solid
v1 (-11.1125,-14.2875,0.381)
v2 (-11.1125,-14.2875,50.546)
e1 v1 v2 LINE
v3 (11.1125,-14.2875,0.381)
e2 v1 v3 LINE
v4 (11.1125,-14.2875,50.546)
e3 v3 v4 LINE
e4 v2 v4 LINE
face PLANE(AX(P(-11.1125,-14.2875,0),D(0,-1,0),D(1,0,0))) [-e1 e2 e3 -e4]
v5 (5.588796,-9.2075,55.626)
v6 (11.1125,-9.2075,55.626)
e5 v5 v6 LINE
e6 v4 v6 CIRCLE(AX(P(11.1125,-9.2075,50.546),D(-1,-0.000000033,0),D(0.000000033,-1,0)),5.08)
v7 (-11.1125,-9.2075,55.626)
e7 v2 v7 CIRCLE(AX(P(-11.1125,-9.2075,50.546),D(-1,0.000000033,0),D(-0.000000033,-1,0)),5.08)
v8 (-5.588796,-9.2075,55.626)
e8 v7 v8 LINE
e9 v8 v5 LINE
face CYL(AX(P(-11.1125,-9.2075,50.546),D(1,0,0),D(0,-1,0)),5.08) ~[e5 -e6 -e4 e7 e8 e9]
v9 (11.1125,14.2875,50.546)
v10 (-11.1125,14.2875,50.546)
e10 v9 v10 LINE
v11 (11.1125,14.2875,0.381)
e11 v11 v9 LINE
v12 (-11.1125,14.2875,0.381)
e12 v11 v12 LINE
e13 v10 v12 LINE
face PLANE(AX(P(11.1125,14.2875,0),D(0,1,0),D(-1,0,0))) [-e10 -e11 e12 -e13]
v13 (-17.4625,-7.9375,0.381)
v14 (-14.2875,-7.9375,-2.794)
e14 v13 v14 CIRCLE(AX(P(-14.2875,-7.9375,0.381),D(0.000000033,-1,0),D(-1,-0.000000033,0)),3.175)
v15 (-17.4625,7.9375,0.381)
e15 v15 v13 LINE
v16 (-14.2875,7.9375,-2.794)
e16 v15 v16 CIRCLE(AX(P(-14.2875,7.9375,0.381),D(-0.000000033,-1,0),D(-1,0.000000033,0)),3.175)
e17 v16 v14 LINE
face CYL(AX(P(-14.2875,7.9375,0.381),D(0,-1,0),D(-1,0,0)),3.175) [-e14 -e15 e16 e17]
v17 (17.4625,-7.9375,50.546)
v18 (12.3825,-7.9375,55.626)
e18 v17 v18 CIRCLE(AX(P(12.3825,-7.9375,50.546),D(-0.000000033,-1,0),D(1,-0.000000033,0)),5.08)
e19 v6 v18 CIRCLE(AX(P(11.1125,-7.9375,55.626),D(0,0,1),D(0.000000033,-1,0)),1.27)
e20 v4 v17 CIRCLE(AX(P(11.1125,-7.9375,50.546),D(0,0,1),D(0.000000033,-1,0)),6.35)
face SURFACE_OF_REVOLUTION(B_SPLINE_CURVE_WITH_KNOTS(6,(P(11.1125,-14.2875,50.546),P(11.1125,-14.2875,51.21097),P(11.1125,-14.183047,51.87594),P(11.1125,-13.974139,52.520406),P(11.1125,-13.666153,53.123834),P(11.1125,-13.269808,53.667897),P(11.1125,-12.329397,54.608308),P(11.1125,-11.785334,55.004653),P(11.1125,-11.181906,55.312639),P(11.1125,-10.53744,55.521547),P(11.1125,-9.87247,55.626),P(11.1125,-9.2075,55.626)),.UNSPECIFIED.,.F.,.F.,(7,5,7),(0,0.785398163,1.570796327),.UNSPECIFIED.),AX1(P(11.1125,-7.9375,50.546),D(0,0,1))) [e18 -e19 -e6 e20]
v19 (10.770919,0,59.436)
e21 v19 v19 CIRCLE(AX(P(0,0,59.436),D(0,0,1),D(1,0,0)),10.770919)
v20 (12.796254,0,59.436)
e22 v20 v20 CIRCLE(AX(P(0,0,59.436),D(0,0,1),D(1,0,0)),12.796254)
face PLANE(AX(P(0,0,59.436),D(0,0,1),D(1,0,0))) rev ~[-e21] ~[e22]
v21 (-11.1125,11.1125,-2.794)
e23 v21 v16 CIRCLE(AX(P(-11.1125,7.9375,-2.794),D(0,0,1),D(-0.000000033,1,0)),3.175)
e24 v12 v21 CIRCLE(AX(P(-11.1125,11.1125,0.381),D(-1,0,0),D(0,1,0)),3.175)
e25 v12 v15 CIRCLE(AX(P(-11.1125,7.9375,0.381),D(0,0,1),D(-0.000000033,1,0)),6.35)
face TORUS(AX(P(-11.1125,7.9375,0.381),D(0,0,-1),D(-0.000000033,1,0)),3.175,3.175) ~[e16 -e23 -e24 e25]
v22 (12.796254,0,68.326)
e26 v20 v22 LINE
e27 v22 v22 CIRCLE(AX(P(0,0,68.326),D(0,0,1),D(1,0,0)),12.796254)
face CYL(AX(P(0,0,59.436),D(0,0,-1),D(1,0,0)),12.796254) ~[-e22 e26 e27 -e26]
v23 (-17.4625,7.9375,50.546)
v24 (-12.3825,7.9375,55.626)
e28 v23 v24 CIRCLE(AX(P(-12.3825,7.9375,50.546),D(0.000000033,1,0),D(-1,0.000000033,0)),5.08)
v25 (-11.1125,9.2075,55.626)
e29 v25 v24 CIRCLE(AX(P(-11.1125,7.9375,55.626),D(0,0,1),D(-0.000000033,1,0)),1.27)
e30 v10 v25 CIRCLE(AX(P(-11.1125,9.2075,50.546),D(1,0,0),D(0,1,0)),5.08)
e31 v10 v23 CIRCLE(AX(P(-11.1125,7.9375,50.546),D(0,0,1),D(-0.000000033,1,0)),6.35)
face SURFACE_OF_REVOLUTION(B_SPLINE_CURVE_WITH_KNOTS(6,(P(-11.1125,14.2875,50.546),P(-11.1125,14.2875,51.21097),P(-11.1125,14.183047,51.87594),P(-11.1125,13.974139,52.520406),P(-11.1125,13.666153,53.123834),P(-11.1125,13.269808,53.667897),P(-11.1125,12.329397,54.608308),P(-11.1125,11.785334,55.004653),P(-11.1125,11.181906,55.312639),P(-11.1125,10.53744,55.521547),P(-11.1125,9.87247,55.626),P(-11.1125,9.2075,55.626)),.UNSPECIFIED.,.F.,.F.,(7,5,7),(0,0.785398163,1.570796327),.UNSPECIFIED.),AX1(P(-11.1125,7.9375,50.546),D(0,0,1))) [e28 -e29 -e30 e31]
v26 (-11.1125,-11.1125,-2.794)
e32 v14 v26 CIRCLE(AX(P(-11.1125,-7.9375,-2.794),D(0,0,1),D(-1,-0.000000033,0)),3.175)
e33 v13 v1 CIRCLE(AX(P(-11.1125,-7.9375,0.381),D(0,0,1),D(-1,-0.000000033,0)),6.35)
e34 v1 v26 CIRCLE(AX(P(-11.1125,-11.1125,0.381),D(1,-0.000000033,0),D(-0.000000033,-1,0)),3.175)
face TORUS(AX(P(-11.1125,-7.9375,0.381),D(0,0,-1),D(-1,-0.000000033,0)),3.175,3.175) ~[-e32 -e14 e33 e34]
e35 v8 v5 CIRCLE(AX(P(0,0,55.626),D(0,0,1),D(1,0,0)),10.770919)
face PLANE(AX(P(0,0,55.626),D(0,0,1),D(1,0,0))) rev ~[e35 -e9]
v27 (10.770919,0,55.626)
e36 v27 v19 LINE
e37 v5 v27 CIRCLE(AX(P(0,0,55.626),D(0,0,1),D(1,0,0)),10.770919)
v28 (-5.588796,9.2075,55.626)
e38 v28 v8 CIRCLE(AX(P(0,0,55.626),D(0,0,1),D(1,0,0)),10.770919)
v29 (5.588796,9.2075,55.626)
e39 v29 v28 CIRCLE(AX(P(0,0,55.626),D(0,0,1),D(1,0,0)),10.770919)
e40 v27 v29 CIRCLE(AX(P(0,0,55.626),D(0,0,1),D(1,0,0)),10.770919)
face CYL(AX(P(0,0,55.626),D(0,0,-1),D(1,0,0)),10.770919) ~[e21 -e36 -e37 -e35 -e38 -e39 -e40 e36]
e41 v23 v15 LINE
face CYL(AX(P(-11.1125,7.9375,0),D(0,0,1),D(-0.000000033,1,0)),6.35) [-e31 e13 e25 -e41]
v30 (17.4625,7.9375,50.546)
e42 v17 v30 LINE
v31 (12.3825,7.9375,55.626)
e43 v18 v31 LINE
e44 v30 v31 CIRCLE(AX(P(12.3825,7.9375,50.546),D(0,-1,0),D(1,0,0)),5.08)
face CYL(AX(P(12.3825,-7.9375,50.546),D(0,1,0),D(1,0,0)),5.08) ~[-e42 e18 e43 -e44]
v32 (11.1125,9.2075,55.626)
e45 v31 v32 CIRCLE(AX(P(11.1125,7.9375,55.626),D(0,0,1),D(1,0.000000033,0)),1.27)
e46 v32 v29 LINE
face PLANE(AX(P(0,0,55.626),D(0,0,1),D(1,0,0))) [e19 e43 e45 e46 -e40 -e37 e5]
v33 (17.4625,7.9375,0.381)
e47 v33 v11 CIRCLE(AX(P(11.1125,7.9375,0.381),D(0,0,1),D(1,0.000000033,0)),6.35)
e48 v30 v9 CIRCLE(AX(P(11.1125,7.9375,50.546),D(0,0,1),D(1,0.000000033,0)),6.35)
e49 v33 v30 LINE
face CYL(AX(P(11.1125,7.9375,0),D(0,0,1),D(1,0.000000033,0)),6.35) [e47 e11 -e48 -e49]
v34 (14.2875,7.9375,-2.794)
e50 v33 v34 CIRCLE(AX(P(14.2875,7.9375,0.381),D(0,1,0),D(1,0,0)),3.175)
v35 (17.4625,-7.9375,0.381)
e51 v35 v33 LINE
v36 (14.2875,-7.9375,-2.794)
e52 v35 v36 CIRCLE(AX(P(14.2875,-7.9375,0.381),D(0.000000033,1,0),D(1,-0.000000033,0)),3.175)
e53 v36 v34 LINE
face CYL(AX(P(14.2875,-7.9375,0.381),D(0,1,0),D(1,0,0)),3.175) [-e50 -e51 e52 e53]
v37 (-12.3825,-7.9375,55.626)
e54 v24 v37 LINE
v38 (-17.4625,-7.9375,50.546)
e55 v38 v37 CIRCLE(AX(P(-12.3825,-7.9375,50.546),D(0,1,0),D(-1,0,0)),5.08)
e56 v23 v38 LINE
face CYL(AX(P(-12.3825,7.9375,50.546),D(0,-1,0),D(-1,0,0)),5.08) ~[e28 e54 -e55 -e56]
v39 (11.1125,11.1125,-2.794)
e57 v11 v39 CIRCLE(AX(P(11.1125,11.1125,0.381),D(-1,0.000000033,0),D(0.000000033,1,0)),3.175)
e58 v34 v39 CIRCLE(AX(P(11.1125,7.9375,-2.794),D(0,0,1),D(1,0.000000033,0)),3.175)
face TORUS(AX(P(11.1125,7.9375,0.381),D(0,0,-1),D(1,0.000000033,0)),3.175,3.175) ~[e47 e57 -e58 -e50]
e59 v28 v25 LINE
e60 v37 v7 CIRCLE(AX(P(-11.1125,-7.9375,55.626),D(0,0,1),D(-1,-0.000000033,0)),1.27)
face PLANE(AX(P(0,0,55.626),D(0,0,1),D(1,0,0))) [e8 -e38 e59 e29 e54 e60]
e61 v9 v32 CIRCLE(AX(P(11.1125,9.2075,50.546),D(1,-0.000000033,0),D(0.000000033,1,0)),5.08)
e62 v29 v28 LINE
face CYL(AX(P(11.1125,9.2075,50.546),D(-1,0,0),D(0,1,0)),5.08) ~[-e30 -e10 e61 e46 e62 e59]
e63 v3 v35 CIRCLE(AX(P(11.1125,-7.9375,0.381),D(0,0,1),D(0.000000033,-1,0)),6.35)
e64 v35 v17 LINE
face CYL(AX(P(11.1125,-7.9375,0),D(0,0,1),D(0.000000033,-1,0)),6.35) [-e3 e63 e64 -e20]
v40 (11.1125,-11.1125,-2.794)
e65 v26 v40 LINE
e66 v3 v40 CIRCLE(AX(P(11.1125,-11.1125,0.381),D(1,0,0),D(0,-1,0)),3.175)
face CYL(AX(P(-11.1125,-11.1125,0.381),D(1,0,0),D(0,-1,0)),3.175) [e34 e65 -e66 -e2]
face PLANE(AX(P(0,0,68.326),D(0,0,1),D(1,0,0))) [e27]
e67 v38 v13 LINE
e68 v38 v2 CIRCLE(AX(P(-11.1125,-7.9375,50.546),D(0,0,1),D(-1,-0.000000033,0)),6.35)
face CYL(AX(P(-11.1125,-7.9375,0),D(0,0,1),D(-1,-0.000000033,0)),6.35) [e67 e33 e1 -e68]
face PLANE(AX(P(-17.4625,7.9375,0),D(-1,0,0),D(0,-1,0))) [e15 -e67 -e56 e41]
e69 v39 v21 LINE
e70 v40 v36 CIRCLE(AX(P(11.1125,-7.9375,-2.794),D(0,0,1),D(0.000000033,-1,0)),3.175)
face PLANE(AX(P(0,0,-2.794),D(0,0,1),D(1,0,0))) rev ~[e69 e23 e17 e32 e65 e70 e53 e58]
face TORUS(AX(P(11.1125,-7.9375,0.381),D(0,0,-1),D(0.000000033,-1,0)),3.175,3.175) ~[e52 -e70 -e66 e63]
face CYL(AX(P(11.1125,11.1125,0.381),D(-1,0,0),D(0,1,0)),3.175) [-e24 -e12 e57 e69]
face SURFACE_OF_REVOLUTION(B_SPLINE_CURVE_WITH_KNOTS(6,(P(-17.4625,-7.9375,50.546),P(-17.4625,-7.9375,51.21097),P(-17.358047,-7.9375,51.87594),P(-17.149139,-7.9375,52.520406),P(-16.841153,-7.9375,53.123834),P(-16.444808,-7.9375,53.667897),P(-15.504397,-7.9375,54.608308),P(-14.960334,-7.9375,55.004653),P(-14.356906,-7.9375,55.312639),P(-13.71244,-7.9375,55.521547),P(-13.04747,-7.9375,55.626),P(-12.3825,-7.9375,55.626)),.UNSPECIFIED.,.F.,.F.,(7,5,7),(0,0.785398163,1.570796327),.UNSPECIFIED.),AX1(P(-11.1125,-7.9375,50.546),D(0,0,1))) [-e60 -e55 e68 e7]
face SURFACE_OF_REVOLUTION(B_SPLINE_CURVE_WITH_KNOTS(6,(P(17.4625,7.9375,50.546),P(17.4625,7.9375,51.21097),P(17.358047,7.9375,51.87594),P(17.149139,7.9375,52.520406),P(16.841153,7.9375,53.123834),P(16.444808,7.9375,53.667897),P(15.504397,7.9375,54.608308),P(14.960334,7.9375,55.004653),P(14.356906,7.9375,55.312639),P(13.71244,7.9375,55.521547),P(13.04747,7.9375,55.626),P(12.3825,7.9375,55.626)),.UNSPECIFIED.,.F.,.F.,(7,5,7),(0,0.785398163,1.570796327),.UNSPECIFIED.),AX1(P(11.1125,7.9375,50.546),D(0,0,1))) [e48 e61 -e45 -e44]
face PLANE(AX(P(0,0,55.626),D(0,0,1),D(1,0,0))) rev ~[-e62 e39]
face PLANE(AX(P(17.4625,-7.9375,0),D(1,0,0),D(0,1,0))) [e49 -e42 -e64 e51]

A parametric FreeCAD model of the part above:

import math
import FreeCAD as App
import Part
import Sketcher
from FreeCAD import Vector
Q = App.Units.Quantity


def edges_at(feature, points):
    """Names of the edges that pass closest to the given points."""
    edges = feature.Shape.Edges
    near = lambda p: min(range(len(edges)), key=lambda i: edges[i].distToShape(Part.Vertex(*p))[0])
    return sorted({f"Edge{near(p) + 1}" for p in points})

doc = App.newDocument("Part")
params = doc.addObject("Spreadsheet::Sheet", "Params")
for row, (alias, value) in enumerate([
    ("sketch1_radius", "0.25 in"),
    ("sketch1_width", "0.875 in"),
    ("sketch1_height", "0.625 in"),
    ("pad1_length", "2.19 in"),
    ("fillet_radius", "0.2 in"),
    ("sketch2_radius", "0.25 in"),
    ("sketch2_width", "0.875 in"),
    ("sketch2_height", "0.625 in"),
    ("pad2_length", "0.11 in"),
    ("fillet2_radius", "0.125 in"),
    ("pad3_length", "0.15 in"),
    ("pad4_length", "0.35 in"),
], start=1):
    params.set(f"A{row}", alias)
    params.set(f"B{row}", "=" + value)
    params.setAlias(f"B{row}", alias)

body = doc.addObject("PartDesign::Body", "Body")

# Sketch on XY plane
sketch1 = body.newObject("Sketcher::SketchObject", "Sketch")
sketch1.AttachmentSupport = (doc.getObject("XY_Plane"), [""])
sketch1.MapMode = "FlatFace"
sketch1.addGeometry(Part.ArcOfCircle(Part.Circle(Vector(-11.1125, -7.9375, 0), Vector(0, 0, 1), 6.35), math.radians(-179.999998), math.radians(-90.000002)), False)
sketch1.addGeometry(Part.LineSegment(Vector(-11.1125, -14.2875, 0), Vector(11.1125, -14.2875, 0)), False)
sketch1.addGeometry(Part.ArcOfCircle(Part.Circle(Vector(11.1125, -7.9375, 0), Vector(0, 0, 1), 6.35), math.radians(-89.999998), math.radians(-0.000002)), False)
sketch1.addGeometry(Part.LineSegment(Vector(17.4625, -7.9375, 0), Vector(17.4625, 7.9375, 0)), False)
sketch1.addGeometry(Part.ArcOfCircle(Part.Circle(Vector(11.1125, 7.9375, 0), Vector(0, 0, 1), 6.35), math.radians(0.000002), math.radians(89.999998)), False)
sketch1.addGeometry(Part.LineSegment(Vector(11.1125, 14.2875, 0), Vector(-11.1125, 14.2875, 0)), False)
sketch1.addGeometry(Part.ArcOfCircle(Part.Circle(Vector(-11.1125, 7.9375, 0), Vector(0, 0, 1), 6.35), math.radians(90.000002), math.radians(179.999998)), False)
sketch1.addGeometry(Part.LineSegment(Vector(-17.4625, 7.9375, 0), Vector(-17.4625, -7.9375, 0)), False)
sketch1.addConstraint(Sketcher.Constraint("Tangent", 0, 2, 1, 1))
sketch1.addConstraint(Sketcher.Constraint("Tangent", 1, 2, 2, 1))
sketch1.addConstraint(Sketcher.Constraint("Tangent", 2, 2, 3, 1))
sketch1.addConstraint(Sketcher.Constraint("Tangent", 3, 2, 4, 1))
sketch1.addConstraint(Sketcher.Constraint("Tangent", 4, 2, 5, 1))
sketch1.addConstraint(Sketcher.Constraint("Tangent", 5, 2, 6, 1))
sketch1.addConstraint(Sketcher.Constraint("Tangent", 6, 2, 7, 1))
sketch1.addConstraint(Sketcher.Constraint("Tangent", 7, 2, 0, 1))
sketch1.addConstraint(Sketcher.Constraint("Horizontal", 1))
sketch1.addConstraint(Sketcher.Constraint("Vertical", 3))
sketch1.addConstraint(Sketcher.Constraint("Horizontal", 5))
sketch1.addConstraint(Sketcher.Constraint("Vertical", 7))
sketch1.addConstraint(Sketcher.Constraint("Equal", 0, 2))
sketch1.addConstraint(Sketcher.Constraint("Equal", 2, 4))
sketch1.addConstraint(Sketcher.Constraint("Equal", 4, 6))
sketch1.addConstraint(Sketcher.Constraint("Symmetric", 0, 3, 4, 3, -1, 1))
sketch1.addConstraint(Sketcher.Constraint("Radius", 0, Q("0.25 in")))
sketch1.addConstraint(Sketcher.Constraint("DistanceX", 1, 1, 1, 2, Q("0.875 in")))
sketch1.addConstraint(Sketcher.Constraint("DistanceY", 3, 1, 3, 2, Q("0.625 in")))
sketch1.setExpression("Constraints[16]", "Params.sketch1_radius")
sketch1.setExpression("Constraints[17]", "Params.sketch1_width")
sketch1.setExpression("Constraints[18]", "Params.sketch1_height")
pad1 = body.newObject("PartDesign::Pad", "Pad")
pad1.Profile = sketch1
pad1.setExpression("Length", "Params.pad1_length")
doc.recompute()

fillet = body.newObject("PartDesign::Fillet", "Fillet")
fillet.Base = (pad1, edges_at(pad1, [(15.603, -12.428, 55.626)]))
fillet.setExpression("Radius", "Params.fillet_radius")

# Sketch on XY plane
sketch2 = body.newObject("Sketcher::SketchObject", "Sketch001")
sketch2.AttachmentSupport = (doc.getObject("XY_Plane"), [""])
sketch2.MapMode = "FlatFace"
sketch2.addGeometry(Part.ArcOfCircle(Part.Circle(Vector(-11.1125, -7.9375, 0), Vector(0, 0, 1), 6.35), math.radians(-179.999998), math.radians(-90.000002)), False)
sketch2.addGeometry(Part.LineSegment(Vector(-11.1125, -14.2875, 0), Vector(11.1125, -14.2875, 0)), False)
sketch2.addGeometry(Part.ArcOfCircle(Part.Circle(Vector(11.1125, -7.9375, 0), Vector(0, 0, 1), 6.35), math.radians(-89.999998), math.radians(-0.000002)), False)
sketch2.addGeometry(Part.LineSegment(Vector(17.4625, -7.9375, 0), Vector(17.4625, 7.9375, 0)), False)
sketch2.addGeometry(Part.ArcOfCircle(Part.Circle(Vector(11.1125, 7.9375, 0), Vector(0, 0, 1), 6.35), math.radians(0.000002), math.radians(89.999998)), False)
sketch2.addGeometry(Part.LineSegment(Vector(11.1125, 14.2875, 0), Vector(-11.1125, 14.2875, 0)), False)
sketch2.addGeometry(Part.ArcOfCircle(Part.Circle(Vector(-11.1125, 7.9375, 0), Vector(0, 0, 1), 6.35), math.radians(90.000002), math.radians(179.999998)), False)
sketch2.addGeometry(Part.LineSegment(Vector(-17.4625, 7.9375, 0), Vector(-17.4625, -7.9375, 0)), False)
sketch2.addConstraint(Sketcher.Constraint("Tangent", 0, 2, 1, 1))
sketch2.addConstraint(Sketcher.Constraint("Tangent", 1, 2, 2, 1))
sketch2.addConstraint(Sketcher.Constraint("Tangent", 2, 2, 3, 1))
sketch2.addConstraint(Sketcher.Constraint("Tangent", 3, 2, 4, 1))
sketch2.addConstraint(Sketcher.Constraint("Tangent", 4, 2, 5, 1))
sketch2.addConstraint(Sketcher.Constraint("Tangent", 5, 2, 6, 1))
sketch2.addConstraint(Sketcher.Constraint("Tangent", 6, 2, 7, 1))
sketch2.addConstraint(Sketcher.Constraint("Tangent", 7, 2, 0, 1))
sketch2.addConstraint(Sketcher.Constraint("Horizontal", 1))
sketch2.addConstraint(Sketcher.Constraint("Vertical", 3))
sketch2.addConstraint(Sketcher.Constraint("Horizontal", 5))
sketch2.addConstraint(Sketcher.Constraint("Vertical", 7))
sketch2.addConstraint(Sketcher.Constraint("Equal", 0, 2))
sketch2.addConstraint(Sketcher.Constraint("Equal", 2, 4))
sketch2.addConstraint(Sketcher.Constraint("Equal", 4, 6))
sketch2.addConstraint(Sketcher.Constraint("Symmetric", 0, 3, 4, 3, -1, 1))
sketch2.addConstraint(Sketcher.Constraint("Radius", 0, Q("0.25 in")))
sketch2.addConstraint(Sketcher.Constraint("DistanceX", 1, 1, 1, 2, Q("0.875 in")))
sketch2.addConstraint(Sketcher.Constraint("DistanceY", 3, 1, 3, 2, Q("0.625 in")))
sketch2.setExpression("Constraints[16]", "Params.sketch2_radius")
sketch2.setExpression("Constraints[17]", "Params.sketch2_width")
sketch2.setExpression("Constraints[18]", "Params.sketch2_height")
pad2 = body.newObject("PartDesign::Pad", "Pad001")
pad2.Profile = sketch2
pad2.setExpression("Length", "Params.pad2_length")
pad2.Reversed = True
doc.recompute()

fillet2 = body.newObject("PartDesign::Fillet", "Fillet001")
fillet2.Base = (pad2, edges_at(pad2, [(-15.603, -12.428, -2.794)]))
fillet2.setExpression("Radius", "Params.fillet2_radius")

# Sketch on XY plane
sketch3 = body.newObject("Sketcher::SketchObject", "Sketch002")
sketch3.AttachmentSupport = (doc.getObject("XY_Plane"), [""])
sketch3.MapMode = "FlatFace"
sketch3.AttachmentOffset = App.Placement(Vector(0, 0, 2.19 * 25.4), App.Rotation())
sketch3.addGeometry(Part.Circle(Vector(0, 0, 0), Vector(0, 0, 1), 10.770919), False)
sketch3.addConstraint(Sketcher.Constraint("Coincident", 0, 3, -1, 1))
sketch3.addConstraint(Sketcher.Constraint("Diameter", 0, 21.541838))
pad3 = body.newObject("PartDesign::Pad", "Pad002")
pad3.Profile = sketch3
pad3.setExpression("Length", "Params.pad3_length")

# Sketch on XY plane
sketch4 = body.newObject("Sketcher::SketchObject", "Sketch003")
sketch4.AttachmentSupport = (doc.getObject("XY_Plane"), [""])
sketch4.MapMode = "FlatFace"
sketch4.AttachmentOffset = App.Placement(Vector(0, 0, 2.34 * 25.4), App.Rotation())
sketch4.addGeometry(Part.Circle(Vector(0, 0, 0), Vector(0, 0, 1), 12.796254), False)
sketch4.addConstraint(Sketcher.Constraint("Coincident", 0, 3, -1, 1))
sketch4.addConstraint(Sketcher.Constraint("Diameter", 0, 25.592508))
pad4 = body.newObject("PartDesign::Pad", "Pad003")
pad4.Profile = sketch4
pad4.setExpression("Length", "Params.pad4_length")

doc.recompute()
